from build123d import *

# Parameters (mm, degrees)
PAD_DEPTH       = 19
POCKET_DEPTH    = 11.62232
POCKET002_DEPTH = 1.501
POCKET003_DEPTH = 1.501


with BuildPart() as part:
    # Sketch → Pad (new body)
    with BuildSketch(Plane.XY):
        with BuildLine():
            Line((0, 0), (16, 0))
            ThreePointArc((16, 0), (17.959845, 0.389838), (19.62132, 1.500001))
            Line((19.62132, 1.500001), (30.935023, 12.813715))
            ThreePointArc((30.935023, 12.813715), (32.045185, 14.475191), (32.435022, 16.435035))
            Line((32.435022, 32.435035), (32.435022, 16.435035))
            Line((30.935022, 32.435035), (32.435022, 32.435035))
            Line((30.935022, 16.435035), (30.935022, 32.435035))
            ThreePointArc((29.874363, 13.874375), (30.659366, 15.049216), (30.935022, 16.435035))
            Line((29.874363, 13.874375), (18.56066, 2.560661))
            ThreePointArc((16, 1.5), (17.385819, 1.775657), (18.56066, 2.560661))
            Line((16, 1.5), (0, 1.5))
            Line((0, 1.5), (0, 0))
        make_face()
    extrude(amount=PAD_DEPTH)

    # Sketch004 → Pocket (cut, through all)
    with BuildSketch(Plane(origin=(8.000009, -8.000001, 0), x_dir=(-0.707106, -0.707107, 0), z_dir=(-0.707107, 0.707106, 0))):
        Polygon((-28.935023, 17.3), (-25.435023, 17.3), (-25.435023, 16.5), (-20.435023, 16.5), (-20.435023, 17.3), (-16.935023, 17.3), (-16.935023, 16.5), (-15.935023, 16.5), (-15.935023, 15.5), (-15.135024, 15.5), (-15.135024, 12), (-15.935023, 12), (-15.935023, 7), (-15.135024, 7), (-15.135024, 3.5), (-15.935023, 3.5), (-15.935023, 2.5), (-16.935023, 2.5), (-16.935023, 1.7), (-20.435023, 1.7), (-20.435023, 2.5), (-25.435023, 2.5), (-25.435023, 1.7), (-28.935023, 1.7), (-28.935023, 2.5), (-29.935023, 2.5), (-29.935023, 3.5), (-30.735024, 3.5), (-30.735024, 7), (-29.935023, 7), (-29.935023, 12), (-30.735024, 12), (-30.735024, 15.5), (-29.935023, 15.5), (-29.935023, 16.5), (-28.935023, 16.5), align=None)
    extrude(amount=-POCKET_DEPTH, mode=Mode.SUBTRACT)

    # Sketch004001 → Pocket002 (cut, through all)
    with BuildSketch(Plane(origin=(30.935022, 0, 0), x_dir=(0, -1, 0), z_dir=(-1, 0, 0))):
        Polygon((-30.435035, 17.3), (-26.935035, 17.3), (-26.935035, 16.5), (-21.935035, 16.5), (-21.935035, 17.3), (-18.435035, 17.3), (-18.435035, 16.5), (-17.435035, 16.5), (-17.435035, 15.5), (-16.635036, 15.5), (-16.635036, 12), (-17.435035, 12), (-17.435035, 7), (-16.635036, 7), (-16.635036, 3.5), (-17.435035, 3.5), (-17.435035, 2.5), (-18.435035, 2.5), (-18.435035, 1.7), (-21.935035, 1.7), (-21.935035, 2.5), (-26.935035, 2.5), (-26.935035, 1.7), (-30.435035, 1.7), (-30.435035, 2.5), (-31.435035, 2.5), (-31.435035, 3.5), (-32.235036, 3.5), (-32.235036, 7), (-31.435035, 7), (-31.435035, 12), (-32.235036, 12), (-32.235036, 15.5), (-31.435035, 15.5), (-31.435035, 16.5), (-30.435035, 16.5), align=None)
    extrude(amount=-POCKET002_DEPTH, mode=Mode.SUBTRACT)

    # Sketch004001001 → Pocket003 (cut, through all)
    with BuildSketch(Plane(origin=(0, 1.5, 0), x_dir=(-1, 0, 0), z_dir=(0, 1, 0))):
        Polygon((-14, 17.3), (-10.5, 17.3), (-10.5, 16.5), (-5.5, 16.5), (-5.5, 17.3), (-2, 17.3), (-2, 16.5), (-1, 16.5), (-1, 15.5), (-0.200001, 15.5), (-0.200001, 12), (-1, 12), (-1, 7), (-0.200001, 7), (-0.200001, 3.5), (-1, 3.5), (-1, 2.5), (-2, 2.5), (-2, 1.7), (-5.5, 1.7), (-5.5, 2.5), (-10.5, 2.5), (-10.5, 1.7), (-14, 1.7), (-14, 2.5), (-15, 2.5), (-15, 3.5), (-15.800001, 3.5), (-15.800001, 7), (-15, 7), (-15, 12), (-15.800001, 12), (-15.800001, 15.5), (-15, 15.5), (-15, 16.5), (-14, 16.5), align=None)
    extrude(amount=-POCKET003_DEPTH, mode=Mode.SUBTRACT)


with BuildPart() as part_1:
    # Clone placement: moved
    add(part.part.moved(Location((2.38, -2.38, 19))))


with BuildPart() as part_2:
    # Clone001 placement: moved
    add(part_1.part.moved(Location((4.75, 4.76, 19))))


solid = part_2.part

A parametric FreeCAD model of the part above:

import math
import FreeCAD as App
import Part
import Sketcher
Q = App.Units.Quantity


def add_polygon(sketch, points):
    """Adds a closed chain of lines whose ends are joined by coincident constraints."""
    first, n = sketch.GeometryCount, len(points)
    for a, b in zip(points, points[1:] + points[:1]):
        sketch.addGeometry(Part.LineSegment(App.Vector(*a, 0), App.Vector(*b, 0)), False)
    for i in range(n):
        sketch.addConstraint(Sketcher.Constraint("Coincident", first + i, 2, first + (i + 1) % n, 1))

doc = App.newDocument("Part")
params = doc.addObject("Spreadsheet::Sheet", "Params")
for row, (alias, value) in enumerate([
    ("sketch1_width", "16 mm"),
    ("sketch1_length", "16 mm"),
    ("sketch1_width2", "1.5 mm"),
    ("pad1_length", "19 mm"),
    ("sketch2_width", "1 mm"),
    ("sketch2_width2", "5 mm"),
    ("sketch2_width3", "3.5 mm"),
    ("sketch2_width4", "0.800001 mm"),
    ("sketch3_width", "1 mm"),
    ("sketch3_width2", "5 mm"),
    ("sketch3_width3", "3.5 mm"),
    ("sketch3_width4", "0.800001 mm"),
    ("sketch4_width", "1 mm"),
    ("sketch4_width2", "5 mm"),
    ("sketch4_width3", "3.5 mm"),
    ("sketch4_width4", "0.800001 mm"),
], start=1):
    params.set(f"A{row}", alias)
    params.set(f"B{row}", "=" + value)
    params.setAlias(f"B{row}", alias)

body = doc.addObject("PartDesign::Body", "Body")

sketch1 = body.newObject("Sketcher::SketchObject", "Sketch")
sketch1.AttachmentSupport = (doc.getObject("XY_Plane"), [""])
sketch1.MapMode = "FlatFace"
sketch1.addGeometry([
    Part.LineSegment(App.Vector(0, 0, 0), App.Vector(16, 0, 0)),
    Part.ArcOfCircle(Part.Circle(App.Vector(15.999999, 5.121319, 0), App.Vector(0, 0, 1), 5.121319), math.radians(-89.999989), math.radians(-44.99998)),
    Part.LineSegment(App.Vector(19.62132, 1.500001, 0), App.Vector(30.935023, 12.813715, 0)),
    Part.ArcOfCircle(Part.Circle(App.Vector(27.3137, 16.435035, 0), App.Vector(0, 0, 1), 5.121322), math.radians(-44.999976), math.radians(-0.000001)),
    Part.LineSegment(App.Vector(32.435022, 16.435035, 0), App.Vector(32.435022, 32.435035, 0)),
    Part.LineSegment(App.Vector(32.435022, 32.435035, 0), App.Vector(30.935022, 32.435035, 0)),
    Part.LineSegment(App.Vector(30.935022, 32.435035, 0), App.Vector(30.935022, 16.435035, 0)),
    Part.ArcOfCircle(Part.Circle(App.Vector(27.313702, 16.435034, 0), App.Vector(0, 0, 1), 3.62132), math.radians(-44.999978), math.radians(0.00002)),
    Part.LineSegment(App.Vector(29.874363, 13.874375, 0), App.Vector(18.56066, 2.560661, 0)),
    Part.ArcOfCircle(Part.Circle(App.Vector(15.999998, 5.121322, 0), App.Vector(0, 0, 1), 3.621322), math.radians(-89.999976), math.radians(-44.99999)),
    Part.LineSegment(App.Vector(16, 1.5, 0), App.Vector(0, 1.5, 0)),
    Part.LineSegment(App.Vector(0, 1.5, 0), App.Vector(0, 0, 0)),
], False)
sketch1.addConstraint([
    Sketcher.Constraint("Tangent", 0, 2, 1, 1),
    Sketcher.Constraint("Tangent", 1, 2, 2, 1),
    Sketcher.Constraint("Tangent", 2, 2, 3, 1),
    Sketcher.Constraint("Tangent", 3, 2, 4, 1),
    Sketcher.Constraint("Coincident", 4, 2, 5, 1),
    Sketcher.Constraint("Coincident", 5, 2, 6, 1),
    Sketcher.Constraint("Tangent", 6, 2, 7, 2),
    Sketcher.Constraint("Tangent", 7, 1, 8, 1),
    Sketcher.Constraint("Tangent", 8, 2, 9, 2),
    Sketcher.Constraint("Tangent", 9, 1, 10, 1),
    Sketcher.Constraint("Coincident", 10, 2, 11, 1),
    Sketcher.Constraint("Coincident", 11, 2, 0, 1),
    Sketcher.Constraint("Horizontal", 0),
    Sketcher.Constraint("Vertical", 4),
    Sketcher.Constraint("Horizontal", 5),
    Sketcher.Constraint("Vertical", 6),
    Sketcher.Constraint("Horizontal", 10),
    Sketcher.Constraint("Vertical", 11),
    Sketcher.Constraint("Coincident", 11, 2, -1, 1),
    Sketcher.Constraint("Coincident", 7, 3, 3, 3),
    Sketcher.Constraint("Coincident", 9, 3, 1, 3),
    Sketcher.Constraint("Equal", 7, 9),
    Sketcher.Constraint("Parallel", 2, 8),
    Sketcher.Constraint("Horizontal", 1, 2, 9, 1),
    Sketcher.Constraint("Vertical", 2, 2, 5, 2),
    Sketcher.Constraint("Equal", 10, 4),
    Sketcher.Constraint("DistanceX", 0, 1, 0, 2, Q("16 mm")),
    Sketcher.Constraint("Distance", 2, Q("16 mm")),
    Sketcher.Constraint("DistanceX", 5, 2, 5, 1, Q("1.5 mm")),
])
sketch1.setExpression("Constraints[26]", "Params.sketch1_width")
sketch1.setExpression("Constraints[27]", "Params.sketch1_length")
sketch1.setExpression("Constraints[28]", "Params.sketch1_width2")
pad1 = body.newObject("PartDesign::Pad", "Pad")
pad1.Profile = sketch1
pad1.setExpression("Length", "Params.pad1_length")

sketch2 = body.newObject("Sketcher::SketchObject", "Sketch001")
sketch2.Placement = App.Placement(App.Vector(8.000009, -8.000001, 0), App.Rotation(App.Vector(-0.707106281, -0.707107281, 0), App.Vector(0, 0, 0.999999999), App.Vector(-0.707107281, 0.707106281, 0), "ZXY"))
add_polygon(sketch2, [(-25.435023, 17.3), (-28.935023, 17.3), (-28.935023, 16.5), (-29.935023, 16.5), (-29.935023, 15.5), (-30.735024, 15.5), (-30.735024, 12), (-29.935023, 12), (-29.935023, 7), (-30.735024, 7), (-30.735024, 3.5), (-29.935023, 3.5), (-29.935023, 2.5), (-28.935023, 2.5), (-28.935023, 1.7), (-25.435023, 1.7), (-25.435023, 2.5), (-20.435023, 2.5), (-20.435023, 1.7), (-16.935023, 1.7), (-16.935023, 2.5), (-15.935023, 2.5), (-15.935023, 3.5), (-15.135024, 3.5), (-15.135024, 7), (-15.935023, 7), (-15.935023, 12), (-15.135024, 12), (-15.135024, 15.5), (-15.935023, 15.5), (-15.935023, 16.5), (-16.935023, 16.5), (-16.935023, 17.3), (-20.435023, 17.3), (-20.435023, 16.5), (-25.435023, 16.5)])
sketch2.addConstraint([
    Sketcher.Constraint("Horizontal", 0),
    Sketcher.Constraint("Vertical", 1),
    Sketcher.Constraint("Horizontal", 2),
    Sketcher.Constraint("Vertical", 3),
    Sketcher.Constraint("Horizontal", 4),
    Sketcher.Constraint("Vertical", 5),
    Sketcher.Constraint("Horizontal", 6),
    Sketcher.Constraint("Vertical", 7),
    Sketcher.Constraint("Horizontal", 8),
    Sketcher.Constraint("Vertical", 9),
    Sketcher.Constraint("Horizontal", 10),
    Sketcher.Constraint("Vertical", 11),
    Sketcher.Constraint("Horizontal", 12),
    Sketcher.Constraint("Vertical", 13),
    Sketcher.Constraint("Horizontal", 14),
    Sketcher.Constraint("Vertical", 15),
    Sketcher.Constraint("Horizontal", 16),
    Sketcher.Constraint("Vertical", 17),
    Sketcher.Constraint("Horizontal", 18),
    Sketcher.Constraint("Vertical", 19),
    Sketcher.Constraint("Horizontal", 20),
    Sketcher.Constraint("Vertical", 21),
    Sketcher.Constraint("Horizontal", 22),
    Sketcher.Constraint("Vertical", 23),
    Sketcher.Constraint("Horizontal", 24),
    Sketcher.Constraint("Vertical", 25),
    Sketcher.Constraint("Horizontal", 26),
    Sketcher.Constraint("Vertical", 27),
    Sketcher.Constraint("Horizontal", 28),
    Sketcher.Constraint("Vertical", 29),
    Sketcher.Constraint("Horizontal", 30),
    Sketcher.Constraint("Vertical", 31),
    Sketcher.Constraint("Horizontal", 32),
    Sketcher.Constraint("Vertical", 33),
    Sketcher.Constraint("Horizontal", 34),
    Sketcher.Constraint("Vertical", 35),
    Sketcher.Constraint("Horizontal", 12, 2, 15, 2),
    Sketcher.Constraint("Horizontal", 14, 2, 17, 2),
    Sketcher.Constraint("Horizontal", 16, 2, 19, 2),
    Sketcher.Constraint("Horizontal", 10, 2, 21, 2),
    Sketcher.Constraint("Horizontal", 8, 2, 23, 2),
    Sketcher.Constraint("Horizontal", 6, 2, 25, 2),
    Sketcher.Constraint("Horizontal", 4, 2, 27, 2),
    Sketcher.Constraint("Horizontal", 2, 2, 29, 2),
    Sketcher.Constraint("Horizontal", 0, 2, 31, 2),
    Sketcher.Constraint("Horizontal", 30, 2, 33, 2),
    Sketcher.Constraint("Vertical", 3, 2, 6, 2),
    Sketcher.Constraint("Vertical", 5, 2, 8, 2),
    Sketcher.Constraint("Vertical", 7, 2, 10, 2),
    Sketcher.Constraint("Vertical", 1, 2, 12, 2),
    Sketcher.Constraint("Vertical", 21, 2, 24, 2),
    Sketcher.Constraint("Vertical", 23, 2, 26, 2),
    Sketcher.Constraint("Vertical", 25, 2, 28, 2),
    Sketcher.Constraint("Vertical", 19, 2, 30, 2),
    Sketcher.Constraint("Vertical", 17, 2, 32, 2),
    Sketcher.Constraint("Vertical", 15, 2, 34, 2),
    Sketcher.Constraint("Equal", 14, 18),
    Sketcher.Constraint("Equal", 12, 20),
    Sketcher.Constraint("Equal", 28, 1),
    Sketcher.Constraint("Equal", 30, 3),
    Sketcher.Constraint("Equal", 32, 5),
    Sketcher.Constraint("Equal", 34, 7),
    Sketcher.Constraint("Equal", 5, 9),
    Sketcher.Constraint("Equal", 3, 11),
    Sketcher.Constraint("Equal", 1, 13),
    Sketcher.Constraint("Equal", 10, 15),
    Sketcher.Constraint("DistanceX", 2, 2, 2, 1, Q("1 mm")),
    Sketcher.Constraint("DistanceX", 16, 1, 16, 2, Q("5 mm")),
    Sketcher.Constraint("DistanceX", 0, 2, 0, 1, Q("3.5 mm")),
    Sketcher.Constraint("DistanceX", 4, 2, 4, 1, Q("0.800001 mm")),
    Sketcher.Constraint("DistanceY", -1, 1, 5, 2, Q("12 mm")),
    Sketcher.Constraint("DistanceX", 0, 2, -1, 1, Q("28.935023 mm")),
])
sketch2.setExpression("Constraints[102]", "Params.sketch2_width")
sketch2.setExpression("Constraints[103]", "Params.sketch2_width2")
sketch2.setExpression("Constraints[104]", "Params.sketch2_width3")
sketch2.setExpression("Constraints[105]", "Params.sketch2_width4")
pocket1 = body.newObject("PartDesign::Pocket", "Pocket")
pocket1.Profile = sketch2
pocket1.Type = "ThroughAll"

sketch3 = body.newObject("Sketcher::SketchObject", "Sketch002")
sketch3.AttachmentSupport = (doc.getObject("YZ_Plane"), [""])
sketch3.MapMode = "FlatFace"
sketch3.AttachmentOffset = App.Placement(App.Vector(0, 0, 30.935022), App.Rotation())
add_polygon(sketch3, [(26.935035, 17.3), (30.435035, 17.3), (30.435035, 16.5), (31.435035, 16.5), (31.435035, 15.5), (32.235036, 15.5), (32.235036, 12), (31.435035, 12), (31.435035, 7), (32.235036, 7), (32.235036, 3.5), (31.435035, 3.5), (31.435035, 2.5), (30.435035, 2.5), (30.435035, 1.7), (26.935035, 1.7), (26.935035, 2.5), (21.935035, 2.5), (21.935035, 1.7), (18.435035, 1.7), (18.435035, 2.5), (17.435035, 2.5), (17.435035, 3.5), (16.635036, 3.5), (16.635036, 7), (17.435035, 7), (17.435035, 12), (16.635036, 12), (16.635036, 15.5), (17.435035, 15.5), (17.435035, 16.5), (18.435035, 16.5), (18.435035, 17.3), (21.935035, 17.3), (21.935035, 16.5), (26.935035, 16.5)])
sketch3.addConstraint([
    Sketcher.Constraint("Horizontal", 0),
    Sketcher.Constraint("Vertical", 1),
    Sketcher.Constraint("Horizontal", 2),
    Sketcher.Constraint("Vertical", 3),
    Sketcher.Constraint("Horizontal", 4),
    Sketcher.Constraint("Vertical", 5),
    Sketcher.Constraint("Horizontal", 6),
    Sketcher.Constraint("Vertical", 7),
    Sketcher.Constraint("Horizontal", 8),
    Sketcher.Constraint("Vertical", 9),
    Sketcher.Constraint("Horizontal", 10),
    Sketcher.Constraint("Vertical", 11),
    Sketcher.Constraint("Horizontal", 12),
    Sketcher.Constraint("Vertical", 13),
    Sketcher.Constraint("Horizontal", 14),
    Sketcher.Constraint("Vertical", 15),
    Sketcher.Constraint("Horizontal", 16),
    Sketcher.Constraint("Vertical", 17),
    Sketcher.Constraint("Horizontal", 18),
    Sketcher.Constraint("Vertical", 19),
    Sketcher.Constraint("Horizontal", 20),
    Sketcher.Constraint("Vertical", 21),
    Sketcher.Constraint("Horizontal", 22),
    Sketcher.Constraint("Vertical", 23),
    Sketcher.Constraint("Horizontal", 24),
    Sketcher.Constraint("Vertical", 25),
    Sketcher.Constraint("Horizontal", 26),
    Sketcher.Constraint("Vertical", 27),
    Sketcher.Constraint("Horizontal", 28),
    Sketcher.Constraint("Vertical", 29),
    Sketcher.Constraint("Horizontal", 30),
    Sketcher.Constraint("Vertical", 31),
    Sketcher.Constraint("Horizontal", 32),
    Sketcher.Constraint("Vertical", 33),
    Sketcher.Constraint("Horizontal", 34),
    Sketcher.Constraint("Vertical", 35),
    Sketcher.Constraint("Horizontal", 12, 2, 15, 2),
    Sketcher.Constraint("Horizontal", 14, 2, 17, 2),
    Sketcher.Constraint("Horizontal", 16, 2, 19, 2),
    Sketcher.Constraint("Horizontal", 10, 2, 21, 2),
    Sketcher.Constraint("Horizontal", 8, 2, 23, 2),
    Sketcher.Constraint("Horizontal", 6, 2, 25, 2),
    Sketcher.Constraint("Horizontal", 4, 2, 27, 2),
    Sketcher.Constraint("Horizontal", 2, 2, 29, 2),
    Sketcher.Constraint("Horizontal", 0, 2, 31, 2),
    Sketcher.Constraint("Horizontal", 30, 2, 33, 2),
    Sketcher.Constraint("Vertical", 3, 2, 6, 2),
    Sketcher.Constraint("Vertical", 5, 2, 8, 2),
    Sketcher.Constraint("Vertical", 7, 2, 10, 2),
    Sketcher.Constraint("Vertical", 1, 2, 12, 2),
    Sketcher.Constraint("Vertical", 21, 2, 24, 2),
    Sketcher.Constraint("Vertical", 23, 2, 26, 2),
    Sketcher.Constraint("Vertical", 25, 2, 28, 2),
    Sketcher.Constraint("Vertical", 19, 2, 30, 2),
    Sketcher.Constraint("Vertical", 17, 2, 32, 2),
    Sketcher.Constraint("Vertical", 15, 2, 34, 2),
    Sketcher.Constraint("Equal", 14, 18),
    Sketcher.Constraint("Equal", 12, 20),
    Sketcher.Constraint("Equal", 28, 1),
    Sketcher.Constraint("Equal", 30, 3),
    Sketcher.Constraint("Equal", 32, 5),
    Sketcher.Constraint("Equal", 34, 7),
    Sketcher.Constraint("Equal", 5, 9),
    Sketcher.Constraint("Equal", 3, 11),
    Sketcher.Constraint("Equal", 1, 13),
    Sketcher.Constraint("Equal", 10, 15),
    Sketcher.Constraint("DistanceX", 2, 1, 2, 2, Q("1 mm")),
    Sketcher.Constraint("DistanceX", 16, 2, 16, 1, Q("5 mm")),
    Sketcher.Constraint("DistanceX", 0, 1, 0, 2, Q("3.5 mm")),
    Sketcher.Constraint("DistanceX", 4, 1, 4, 2, Q("0.800001 mm")),
    Sketcher.Constraint("DistanceY", -1, 1, 5, 2, Q("12 mm")),
    Sketcher.Constraint("DistanceX", -1, 1, 0, 2, Q("30.435035 mm")),
])
sketch3.setExpression("Constraints[102]", "Params.sketch3_width")
sketch3.setExpression("Constraints[103]", "Params.sketch3_width2")
sketch3.setExpression("Constraints[104]", "Params.sketch3_width3")
sketch3.setExpression("Constraints[105]", "Params.sketch3_width4")
pocket2 = body.newObject("PartDesign::Pocket", "Pocket001")
pocket2.Profile = sketch3
pocket2.Type = "ThroughAll"
pocket2.Reversed = True

sketch4 = body.newObject("Sketcher::SketchObject", "Sketch003")
sketch4.AttachmentSupport = (doc.getObject("XZ_Plane"), [""])
sketch4.MapMode = "FlatFace"
sketch4.AttachmentOffset = App.Placement(App.Vector(0, 0, -1.5), App.Rotation())
add_polygon(sketch4, [(10.5, 17.3), (14, 17.3), (14, 16.5), (15, 16.5), (15, 15.5), (15.800001, 15.5), (15.800001, 12), (15, 12), (15, 7), (15.800001, 7), (15.800001, 3.5), (15, 3.5), (15, 2.5), (14, 2.5), (14, 1.7), (10.5, 1.7), (10.5, 2.5), (5.5, 2.5), (5.5, 1.7), (2, 1.7), (2, 2.5), (1, 2.5), (1, 3.5), (0.200001, 3.5), (0.200001, 7), (1, 7), (1, 12), (0.200001, 12), (0.200001, 15.5), (1, 15.5), (1, 16.5), (2, 16.5), (2, 17.3), (5.5, 17.3), (5.5, 16.5), (10.5, 16.5)])
sketch4.addConstraint([
    Sketcher.Constraint("Horizontal", 0),
    Sketcher.Constraint("Vertical", 1),
    Sketcher.Constraint("Horizontal", 2),
    Sketcher.Constraint("Vertical", 3),
    Sketcher.Constraint("Horizontal", 4),
    Sketcher.Constraint("Vertical", 5),
    Sketcher.Constraint("Horizontal", 6),
    Sketcher.Constraint("Vertical", 7),
    Sketcher.Constraint("Horizontal", 8),
    Sketcher.Constraint("Vertical", 9),
    Sketcher.Constraint("Horizontal", 10),
    Sketcher.Constraint("Vertical", 11),
    Sketcher.Constraint("Horizontal", 12),
    Sketcher.Constraint("Vertical", 13),
    Sketcher.Constraint("Horizontal", 14),
    Sketcher.Constraint("Vertical", 15),
    Sketcher.Constraint("Horizontal", 16),
    Sketcher.Constraint("Vertical", 17),
    Sketcher.Constraint("Horizontal", 18),
    Sketcher.Constraint("Vertical", 19),
    Sketcher.Constraint("Horizontal", 20),
    Sketcher.Constraint("Vertical", 21),
    Sketcher.Constraint("Horizontal", 22),
    Sketcher.Constraint("Vertical", 23),
    Sketcher.Constraint("Horizontal", 24),
    Sketcher.Constraint("Vertical", 25),
    Sketcher.Constraint("Horizontal", 26),
    Sketcher.Constraint("Vertical", 27),
    Sketcher.Constraint("Horizontal", 28),
    Sketcher.Constraint("Vertical", 29),
    Sketcher.Constraint("Horizontal", 30),
    Sketcher.Constraint("Vertical", 31),
    Sketcher.Constraint("Horizontal", 32),
    Sketcher.Constraint("Vertical", 33),
    Sketcher.Constraint("Horizontal", 34),
    Sketcher.Constraint("Vertical", 35),
    Sketcher.Constraint("Horizontal", 12, 2, 15, 2),
    Sketcher.Constraint("Horizontal", 14, 2, 17, 2),
    Sketcher.Constraint("Horizontal", 16, 2, 19, 2),
    Sketcher.Constraint("Horizontal", 10, 2, 21, 2),
    Sketcher.Constraint("Horizontal", 8, 2, 23, 2),
    Sketcher.Constraint("Horizontal", 6, 2, 25, 2),
    Sketcher.Constraint("Horizontal", 4, 2, 27, 2),
    Sketcher.Constraint("Horizontal", 2, 2, 29, 2),
    Sketcher.Constraint("Horizontal", 0, 2, 31, 2),
    Sketcher.Constraint("Horizontal", 30, 2, 33, 2),
    Sketcher.Constraint("Vertical", 3, 2, 6, 2),
    Sketcher.Constraint("Vertical", 5, 2, 8, 2),
    Sketcher.Constraint("Vertical", 7, 2, 10, 2),
    Sketcher.Constraint("Vertical", 1, 2, 12, 2),
    Sketcher.Constraint("Vertical", 21, 2, 24, 2),
    Sketcher.Constraint("Vertical", 23, 2, 26, 2),
    Sketcher.Constraint("Vertical", 25, 2, 28, 2),
    Sketcher.Constraint("Vertical", 19, 2, 30, 2),
    Sketcher.Constraint("Vertical", 17, 2, 32, 2),
    Sketcher.Constraint("Vertical", 15, 2, 34, 2),
    Sketcher.Constraint("Equal", 14, 18),
    Sketcher.Constraint("Equal", 12, 20),
    Sketcher.Constraint("Equal", 10, 22),
    Sketcher.Constraint("Equal", 28, 1),
    Sketcher.Constraint("Equal", 30, 3),
    Sketcher.Constraint("Equal", 32, 5),
    Sketcher.Constraint("Equal", 34, 7),
    Sketcher.Constraint("Equal", 5, 9),
    Sketcher.Constraint("Equal", 3, 11),
    Sketcher.Constraint("Equal", 1, 13),
    Sketcher.Constraint("DistanceX", 2, 1, 2, 2, Q("1 mm")),
    Sketcher.Constraint("DistanceX", 16, 2, 16, 1, Q("5 mm")),
    Sketcher.Constraint("DistanceX", 0, 1, 0, 2, Q("3.5 mm")),
    Sketcher.Constraint("DistanceX", 4, 1, 4, 2, Q("0.800001 mm")),
    Sketcher.Constraint("DistanceX", -1, 1, 0, 2, Q("14 mm")),
    Sketcher.Constraint("DistanceY", -1, 1, 5, 2, Q("12 mm")),
])
sketch4.setExpression("Constraints[102]", "Params.sketch4_width")
sketch4.setExpression("Constraints[103]", "Params.sketch4_width2")
sketch4.setExpression("Constraints[104]", "Params.sketch4_width3")
sketch4.setExpression("Constraints[105]", "Params.sketch4_width4")
pocket3 = body.newObject("PartDesign::Pocket", "Pocket002")
pocket3.Profile = sketch4
pocket3.Type = "ThroughAll"
pocket3.Reversed = True
body2 = doc.addObject("PartDesign::Body", "Body001")
doc.recompute()

body.Placement = App.Placement(App.Vector(2.38, -2.38, 19), App.Rotation(App.Vector(0, 0, 1), 0))
boolean = body2.newObject("PartDesign::Boolean", "Boolean")
boolean.Type = "Fuse"
boolean.addObjects([body])
body3 = doc.addObject("PartDesign::Body", "Body002")
doc.recompute()

body2.Placement = App.Placement(App.Vector(4.75, 4.76, 19), App.Rotation(App.Vector(0, 0, 1), 0))
boolean2 = body3.newObject("PartDesign::Boolean", "Boolean001")
boolean2.Type = "Fuse"
boolean2.addObjects([body2])

doc.recompute()
